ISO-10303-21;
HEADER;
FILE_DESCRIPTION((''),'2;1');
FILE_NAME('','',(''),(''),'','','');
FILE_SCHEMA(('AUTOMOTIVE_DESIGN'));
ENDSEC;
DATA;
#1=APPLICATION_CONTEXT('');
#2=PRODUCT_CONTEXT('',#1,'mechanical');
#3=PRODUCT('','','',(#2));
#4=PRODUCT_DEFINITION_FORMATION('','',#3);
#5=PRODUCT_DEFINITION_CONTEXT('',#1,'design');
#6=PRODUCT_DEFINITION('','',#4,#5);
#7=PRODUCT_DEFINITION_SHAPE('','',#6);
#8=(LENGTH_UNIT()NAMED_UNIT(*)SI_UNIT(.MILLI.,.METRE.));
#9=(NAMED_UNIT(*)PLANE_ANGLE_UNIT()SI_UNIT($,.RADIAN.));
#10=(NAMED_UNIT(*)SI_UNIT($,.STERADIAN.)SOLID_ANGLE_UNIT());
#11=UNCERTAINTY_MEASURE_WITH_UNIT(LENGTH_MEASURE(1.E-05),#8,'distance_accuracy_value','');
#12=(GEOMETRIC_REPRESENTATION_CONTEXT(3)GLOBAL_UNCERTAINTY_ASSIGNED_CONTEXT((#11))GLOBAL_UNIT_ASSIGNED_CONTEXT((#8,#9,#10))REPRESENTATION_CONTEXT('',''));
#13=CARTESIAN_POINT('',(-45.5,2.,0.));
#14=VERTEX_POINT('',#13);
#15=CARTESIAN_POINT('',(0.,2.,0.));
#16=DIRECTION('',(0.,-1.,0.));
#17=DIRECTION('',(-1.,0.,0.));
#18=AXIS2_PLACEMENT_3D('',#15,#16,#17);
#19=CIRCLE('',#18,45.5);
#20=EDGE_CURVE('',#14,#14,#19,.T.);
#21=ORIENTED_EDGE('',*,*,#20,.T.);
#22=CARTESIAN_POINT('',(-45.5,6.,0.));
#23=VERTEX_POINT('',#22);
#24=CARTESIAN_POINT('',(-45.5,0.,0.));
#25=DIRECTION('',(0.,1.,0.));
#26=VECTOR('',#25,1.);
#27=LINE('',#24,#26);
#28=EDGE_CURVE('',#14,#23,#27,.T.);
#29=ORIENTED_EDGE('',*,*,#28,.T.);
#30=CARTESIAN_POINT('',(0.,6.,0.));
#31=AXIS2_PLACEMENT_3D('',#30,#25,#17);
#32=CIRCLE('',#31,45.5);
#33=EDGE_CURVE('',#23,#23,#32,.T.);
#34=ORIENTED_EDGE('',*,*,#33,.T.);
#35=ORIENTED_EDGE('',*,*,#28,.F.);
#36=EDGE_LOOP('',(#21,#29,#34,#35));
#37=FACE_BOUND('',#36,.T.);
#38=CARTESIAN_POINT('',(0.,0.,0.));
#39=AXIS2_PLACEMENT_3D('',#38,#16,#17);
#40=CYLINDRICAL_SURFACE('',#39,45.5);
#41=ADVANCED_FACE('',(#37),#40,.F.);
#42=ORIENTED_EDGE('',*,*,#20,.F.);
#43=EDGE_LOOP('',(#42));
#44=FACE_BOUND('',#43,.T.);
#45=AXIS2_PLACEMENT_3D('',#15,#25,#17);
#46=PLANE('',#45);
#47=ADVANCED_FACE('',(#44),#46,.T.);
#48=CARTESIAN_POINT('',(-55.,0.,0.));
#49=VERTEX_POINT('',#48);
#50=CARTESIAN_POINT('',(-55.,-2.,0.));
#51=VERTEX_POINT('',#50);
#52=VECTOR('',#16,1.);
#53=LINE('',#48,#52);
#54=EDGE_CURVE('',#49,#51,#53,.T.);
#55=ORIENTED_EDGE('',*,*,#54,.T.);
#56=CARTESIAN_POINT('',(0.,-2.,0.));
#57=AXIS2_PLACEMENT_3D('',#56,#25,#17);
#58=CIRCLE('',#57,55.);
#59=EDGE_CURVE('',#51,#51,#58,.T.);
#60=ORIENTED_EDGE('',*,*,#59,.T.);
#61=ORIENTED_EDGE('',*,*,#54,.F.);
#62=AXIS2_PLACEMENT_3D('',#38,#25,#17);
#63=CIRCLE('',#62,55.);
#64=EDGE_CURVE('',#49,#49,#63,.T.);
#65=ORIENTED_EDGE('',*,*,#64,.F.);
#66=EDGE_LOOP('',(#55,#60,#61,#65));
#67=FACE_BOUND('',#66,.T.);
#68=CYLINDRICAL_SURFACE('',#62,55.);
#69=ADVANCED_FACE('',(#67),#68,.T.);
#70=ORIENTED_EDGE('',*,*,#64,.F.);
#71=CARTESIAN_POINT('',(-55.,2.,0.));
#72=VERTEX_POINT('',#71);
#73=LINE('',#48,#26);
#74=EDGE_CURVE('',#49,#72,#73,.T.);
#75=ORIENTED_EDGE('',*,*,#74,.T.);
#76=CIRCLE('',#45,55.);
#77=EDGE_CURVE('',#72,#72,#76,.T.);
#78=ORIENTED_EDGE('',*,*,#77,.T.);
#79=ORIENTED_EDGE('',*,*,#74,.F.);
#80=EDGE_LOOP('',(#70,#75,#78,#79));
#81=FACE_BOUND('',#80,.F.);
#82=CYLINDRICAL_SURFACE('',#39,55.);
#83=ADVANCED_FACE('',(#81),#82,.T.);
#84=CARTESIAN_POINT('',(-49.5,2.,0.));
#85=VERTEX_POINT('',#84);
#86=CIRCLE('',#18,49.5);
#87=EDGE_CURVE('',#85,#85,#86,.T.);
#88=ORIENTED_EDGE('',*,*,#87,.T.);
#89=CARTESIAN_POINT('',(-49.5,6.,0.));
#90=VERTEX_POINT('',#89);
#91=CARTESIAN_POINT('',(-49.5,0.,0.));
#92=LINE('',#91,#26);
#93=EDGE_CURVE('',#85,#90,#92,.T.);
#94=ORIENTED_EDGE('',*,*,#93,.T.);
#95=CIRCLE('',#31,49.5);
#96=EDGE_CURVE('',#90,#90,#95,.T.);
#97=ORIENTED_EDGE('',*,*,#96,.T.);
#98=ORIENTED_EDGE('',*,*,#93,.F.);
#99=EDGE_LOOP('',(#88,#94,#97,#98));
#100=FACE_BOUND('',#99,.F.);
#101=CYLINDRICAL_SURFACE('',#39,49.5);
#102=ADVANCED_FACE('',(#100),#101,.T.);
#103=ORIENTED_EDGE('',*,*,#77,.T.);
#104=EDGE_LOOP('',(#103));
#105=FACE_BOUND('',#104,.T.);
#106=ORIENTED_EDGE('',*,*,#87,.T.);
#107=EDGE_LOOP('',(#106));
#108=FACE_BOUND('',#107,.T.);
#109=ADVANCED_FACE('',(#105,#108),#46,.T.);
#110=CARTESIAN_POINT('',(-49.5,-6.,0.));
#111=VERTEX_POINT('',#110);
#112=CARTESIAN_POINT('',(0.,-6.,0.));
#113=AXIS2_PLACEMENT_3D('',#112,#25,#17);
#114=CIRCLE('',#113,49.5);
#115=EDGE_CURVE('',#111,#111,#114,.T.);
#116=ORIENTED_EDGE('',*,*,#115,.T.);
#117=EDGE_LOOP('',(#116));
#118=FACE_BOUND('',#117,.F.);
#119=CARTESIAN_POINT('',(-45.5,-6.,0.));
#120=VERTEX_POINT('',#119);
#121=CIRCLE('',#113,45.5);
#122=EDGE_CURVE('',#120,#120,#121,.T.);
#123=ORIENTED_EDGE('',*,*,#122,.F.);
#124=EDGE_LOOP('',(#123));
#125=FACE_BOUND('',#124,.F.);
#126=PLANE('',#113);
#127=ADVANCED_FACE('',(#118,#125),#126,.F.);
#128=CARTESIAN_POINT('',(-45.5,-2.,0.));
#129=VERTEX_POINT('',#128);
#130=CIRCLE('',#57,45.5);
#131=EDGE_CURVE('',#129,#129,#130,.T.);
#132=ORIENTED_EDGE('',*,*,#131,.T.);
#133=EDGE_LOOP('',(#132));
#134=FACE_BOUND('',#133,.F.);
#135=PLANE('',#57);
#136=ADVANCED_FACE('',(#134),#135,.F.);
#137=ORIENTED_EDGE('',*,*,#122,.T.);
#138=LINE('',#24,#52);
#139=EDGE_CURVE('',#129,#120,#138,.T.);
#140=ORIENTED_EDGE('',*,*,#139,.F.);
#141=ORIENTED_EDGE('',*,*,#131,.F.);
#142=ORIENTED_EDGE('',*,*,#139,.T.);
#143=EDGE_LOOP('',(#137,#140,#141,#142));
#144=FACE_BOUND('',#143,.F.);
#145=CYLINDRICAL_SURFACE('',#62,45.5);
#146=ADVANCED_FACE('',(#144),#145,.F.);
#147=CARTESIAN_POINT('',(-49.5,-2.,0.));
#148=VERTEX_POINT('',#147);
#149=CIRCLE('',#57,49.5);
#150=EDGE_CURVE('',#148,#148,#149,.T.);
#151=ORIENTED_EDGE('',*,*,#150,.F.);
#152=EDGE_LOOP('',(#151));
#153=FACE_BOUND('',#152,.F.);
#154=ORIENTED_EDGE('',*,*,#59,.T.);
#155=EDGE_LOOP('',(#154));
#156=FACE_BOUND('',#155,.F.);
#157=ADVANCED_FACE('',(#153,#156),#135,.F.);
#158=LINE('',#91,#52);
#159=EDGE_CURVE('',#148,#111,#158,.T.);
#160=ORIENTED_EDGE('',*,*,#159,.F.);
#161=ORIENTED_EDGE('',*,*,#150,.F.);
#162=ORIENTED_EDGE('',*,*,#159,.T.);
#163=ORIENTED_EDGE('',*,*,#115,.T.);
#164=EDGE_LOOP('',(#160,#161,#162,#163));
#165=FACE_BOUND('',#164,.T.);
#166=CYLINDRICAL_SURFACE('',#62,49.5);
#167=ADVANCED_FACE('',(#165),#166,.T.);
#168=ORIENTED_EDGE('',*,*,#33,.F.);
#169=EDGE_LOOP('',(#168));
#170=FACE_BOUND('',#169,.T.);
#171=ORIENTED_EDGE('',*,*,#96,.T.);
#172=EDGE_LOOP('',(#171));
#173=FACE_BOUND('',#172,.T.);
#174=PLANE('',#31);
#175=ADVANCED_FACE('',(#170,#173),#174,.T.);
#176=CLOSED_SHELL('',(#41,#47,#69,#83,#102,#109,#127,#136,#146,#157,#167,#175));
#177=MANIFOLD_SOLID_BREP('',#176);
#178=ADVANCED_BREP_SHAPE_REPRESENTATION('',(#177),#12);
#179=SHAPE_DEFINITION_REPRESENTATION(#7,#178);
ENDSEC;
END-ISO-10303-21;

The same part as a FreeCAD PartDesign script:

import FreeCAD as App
import Part
import Sketcher
from FreeCAD import Vector

doc = App.newDocument("Part")
body = doc.addObject("PartDesign::Body", "Body")

sketch1 = body.newObject("Sketcher::SketchObject", "Sketch")
sketch1.AttachmentSupport = (doc.getObject("XZ_Plane"), [""])
sketch1.MapMode = "FlatFace"
sketch1.addGeometry(Part.Circle(Vector(0, 0, 0), Vector(0, 0, 1), 55), False)
sketch1.addConstraint([
    Sketcher.Constraint("Coincident", 0, 3, -1, 1),
    Sketcher.Constraint("Diameter", 0, 110.0),
])
pad1 = body.newObject("PartDesign::Pad", "Pad")
pad1.Profile = sketch1
pad1.Length = 4
pad1.Midplane = True

sketch2 = body.newObject("Sketcher::SketchObject", "Sketch001")
sketch2.AttachmentSupport = (doc.getObject("XZ_Plane"), [""])
sketch2.MapMode = "FlatFace"
sketch2.addGeometry([
    Part.Circle(Vector(0, 0, 0), Vector(0, 0, 1), 49.5),
    Part.Circle(Vector(0, 0, 0), Vector(0, 0, 1), 45.5),
], False)
sketch2.addConstraint([
    Sketcher.Constraint("Coincident", 0, 3, -1, 1),
    Sketcher.Constraint("Coincident", 1, 3, -1, 1),
    Sketcher.Constraint("Diameter", 0, 99.0),
    Sketcher.Constraint("Diameter", 1, 91.0),
])
pad2 = body.newObject("PartDesign::Pad", "Pad001")
pad2.Profile = sketch2
pad2.Length = 12
pad2.Midplane = True

doc.recompute()
